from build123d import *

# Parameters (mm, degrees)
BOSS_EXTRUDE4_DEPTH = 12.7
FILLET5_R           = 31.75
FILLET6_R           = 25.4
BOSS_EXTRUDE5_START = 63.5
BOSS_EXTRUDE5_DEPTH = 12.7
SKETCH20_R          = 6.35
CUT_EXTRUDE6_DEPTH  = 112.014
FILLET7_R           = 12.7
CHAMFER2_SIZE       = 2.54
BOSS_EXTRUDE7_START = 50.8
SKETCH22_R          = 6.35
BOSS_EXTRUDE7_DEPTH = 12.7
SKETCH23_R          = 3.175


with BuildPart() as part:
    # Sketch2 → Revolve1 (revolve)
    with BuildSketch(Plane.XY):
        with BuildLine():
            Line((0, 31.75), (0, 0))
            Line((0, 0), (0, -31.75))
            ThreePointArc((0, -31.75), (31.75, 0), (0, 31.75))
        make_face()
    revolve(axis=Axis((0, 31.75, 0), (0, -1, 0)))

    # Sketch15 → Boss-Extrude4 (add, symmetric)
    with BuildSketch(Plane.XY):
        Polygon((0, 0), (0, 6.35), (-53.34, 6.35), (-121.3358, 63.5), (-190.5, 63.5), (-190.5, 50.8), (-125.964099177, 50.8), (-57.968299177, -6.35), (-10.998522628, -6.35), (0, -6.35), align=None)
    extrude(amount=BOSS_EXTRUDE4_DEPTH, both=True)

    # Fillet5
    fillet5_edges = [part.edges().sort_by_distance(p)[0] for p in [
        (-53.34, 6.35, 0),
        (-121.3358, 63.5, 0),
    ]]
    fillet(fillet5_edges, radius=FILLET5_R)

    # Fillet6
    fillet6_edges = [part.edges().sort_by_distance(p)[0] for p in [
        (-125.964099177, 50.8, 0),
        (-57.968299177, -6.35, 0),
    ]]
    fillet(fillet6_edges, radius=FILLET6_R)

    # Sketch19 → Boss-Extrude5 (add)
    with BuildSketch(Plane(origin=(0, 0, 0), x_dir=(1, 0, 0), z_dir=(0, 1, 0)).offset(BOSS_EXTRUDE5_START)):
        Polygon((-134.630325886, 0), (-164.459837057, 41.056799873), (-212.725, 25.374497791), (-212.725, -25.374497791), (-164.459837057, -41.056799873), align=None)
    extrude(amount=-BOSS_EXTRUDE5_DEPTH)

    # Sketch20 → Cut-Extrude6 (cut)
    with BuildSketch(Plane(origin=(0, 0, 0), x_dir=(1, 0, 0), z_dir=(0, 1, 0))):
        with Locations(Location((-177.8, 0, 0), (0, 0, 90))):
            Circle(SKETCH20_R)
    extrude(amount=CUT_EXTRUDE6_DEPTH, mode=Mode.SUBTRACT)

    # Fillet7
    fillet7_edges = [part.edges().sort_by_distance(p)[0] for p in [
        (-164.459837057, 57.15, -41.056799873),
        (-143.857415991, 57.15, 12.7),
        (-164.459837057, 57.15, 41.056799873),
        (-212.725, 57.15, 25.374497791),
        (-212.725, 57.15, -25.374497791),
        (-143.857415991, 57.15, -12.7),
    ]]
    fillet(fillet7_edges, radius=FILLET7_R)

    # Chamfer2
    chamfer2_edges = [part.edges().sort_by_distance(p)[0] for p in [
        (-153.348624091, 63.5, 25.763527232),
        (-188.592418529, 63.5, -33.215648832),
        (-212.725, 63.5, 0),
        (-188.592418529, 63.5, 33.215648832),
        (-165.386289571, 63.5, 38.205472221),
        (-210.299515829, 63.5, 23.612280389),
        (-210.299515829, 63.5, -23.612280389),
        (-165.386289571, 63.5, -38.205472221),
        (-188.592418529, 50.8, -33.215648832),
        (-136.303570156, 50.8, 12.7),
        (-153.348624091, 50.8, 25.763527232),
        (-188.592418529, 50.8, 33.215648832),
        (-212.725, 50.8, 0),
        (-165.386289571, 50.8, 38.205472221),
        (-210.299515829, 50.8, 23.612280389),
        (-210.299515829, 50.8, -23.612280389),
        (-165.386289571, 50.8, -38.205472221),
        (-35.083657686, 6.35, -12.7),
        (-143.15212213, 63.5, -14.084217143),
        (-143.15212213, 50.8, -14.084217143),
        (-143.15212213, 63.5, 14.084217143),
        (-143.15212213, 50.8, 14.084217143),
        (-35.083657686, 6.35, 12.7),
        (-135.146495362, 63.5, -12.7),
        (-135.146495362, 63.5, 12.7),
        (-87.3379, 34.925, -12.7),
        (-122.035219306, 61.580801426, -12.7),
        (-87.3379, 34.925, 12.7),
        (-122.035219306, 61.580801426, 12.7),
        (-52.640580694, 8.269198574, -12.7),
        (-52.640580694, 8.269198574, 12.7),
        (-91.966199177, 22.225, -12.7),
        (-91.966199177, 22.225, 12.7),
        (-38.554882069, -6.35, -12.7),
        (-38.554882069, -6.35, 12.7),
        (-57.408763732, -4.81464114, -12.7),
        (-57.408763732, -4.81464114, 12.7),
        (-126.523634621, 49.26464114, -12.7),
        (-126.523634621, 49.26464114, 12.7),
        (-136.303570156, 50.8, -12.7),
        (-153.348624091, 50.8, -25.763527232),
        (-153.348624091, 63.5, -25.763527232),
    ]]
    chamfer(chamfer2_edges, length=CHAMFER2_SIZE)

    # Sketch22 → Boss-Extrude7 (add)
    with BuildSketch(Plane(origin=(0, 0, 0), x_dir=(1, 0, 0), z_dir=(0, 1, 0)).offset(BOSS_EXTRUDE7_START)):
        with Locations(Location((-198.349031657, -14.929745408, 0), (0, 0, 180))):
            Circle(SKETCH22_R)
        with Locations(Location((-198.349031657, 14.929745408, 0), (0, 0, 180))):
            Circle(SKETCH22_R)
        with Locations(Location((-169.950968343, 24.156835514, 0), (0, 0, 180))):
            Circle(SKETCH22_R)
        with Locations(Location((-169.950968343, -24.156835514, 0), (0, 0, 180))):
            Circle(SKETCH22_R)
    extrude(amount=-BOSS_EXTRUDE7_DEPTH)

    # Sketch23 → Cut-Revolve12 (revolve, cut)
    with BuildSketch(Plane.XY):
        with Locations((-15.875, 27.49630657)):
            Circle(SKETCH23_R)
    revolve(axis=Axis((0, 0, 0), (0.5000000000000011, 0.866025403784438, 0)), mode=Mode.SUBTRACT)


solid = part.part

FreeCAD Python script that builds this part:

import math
import FreeCAD as App
import Part
import Sketcher
from FreeCAD import Vector
Q = App.Units.Quantity


def edges_at(feature, points):
    """Names of the edges that pass closest to the given points."""
    edges = feature.Shape.Edges
    near = lambda p: min(range(len(edges)), key=lambda i: edges[i].distToShape(Part.Vertex(*p))[0])
    return sorted({f"Edge{near(p) + 1}" for p in points})

doc = App.newDocument("Part")
body = doc.addObject("PartDesign::Body", "Body")

sketch1 = body.newObject("Sketcher::SketchObject", "Sketch")
sketch1.AttachmentSupport = (doc.getObject("XY_Plane"), [""])
sketch1.MapMode = "FlatFace"
sketch1.addGeometry(Part.LineSegment(Vector(0, 32, 0), Vector(0, -32, 0)), False)
sketch1.addGeometry(Part.ArcOfCircle(Part.Circle(Vector(0, 0, 0), Vector(0, 0, 1), 32), math.radians(-90), math.radians(90)), False)
sketch1.addConstraint(Sketcher.Constraint("Coincident", 0, 1, 1, 2))
sketch1.addConstraint(Sketcher.Constraint("Coincident", 1, 1, 0, 2))
sketch1.addConstraint(Sketcher.Constraint("Vertical", 0))
sketch1.addConstraint(Sketcher.Constraint("Coincident", 1, 3, -1, 1))
sketch1.addConstraint(Sketcher.Constraint("PointOnObject", 0, 1, -2))
sketch1.addConstraint(Sketcher.Constraint("Radius", 1, Q("1.25 in")))
revolution = body.newObject("PartDesign::Revolution", "Revolution")
revolution.Profile = sketch1
revolution.ReferenceAxis = (sketch1, ["V_Axis"])
revolution.Angle = 360

sketch2 = body.newObject("Sketcher::SketchObject", "Sketch001")
sketch2.AttachmentSupport = (doc.getObject("XY_Plane"), [""])
sketch2.MapMode = "FlatFace"
sketch2.addGeometry(Part.LineSegment(Vector(0, 6, 0), Vector(-53, 6, 0)), False)
sketch2.addGeometry(Part.LineSegment(Vector(-53, 6, 0), Vector(-121, 64, 0)), False)
sketch2.addGeometry(Part.LineSegment(Vector(-121, 64, 0), Vector(-190, 64, 0)), False)
sketch2.addGeometry(Part.LineSegment(Vector(-190, 64, 0), Vector(-190, 51, 0)), False)
sketch2.addGeometry(Part.LineSegment(Vector(-190, 51, 0), Vector(-126, 51, 0)), False)
sketch2.addGeometry(Part.LineSegment(Vector(-126, 51, 0), Vector(-58, -6, 0)), False)
sketch2.addGeometry(Part.LineSegment(Vector(-58, -6, 0), Vector(0, -6, 0)), False)
sketch2.addGeometry(Part.LineSegment(Vector(0, -6, 0), Vector(0, 6, 0)), False)
sketch2.addConstraint(Sketcher.Constraint("Coincident", 0, 2, 1, 1))
sketch2.addConstraint(Sketcher.Constraint("Coincident", 1, 2, 2, 1))
sketch2.addConstraint(Sketcher.Constraint("Coincident", 2, 2, 3, 1))
sketch2.addConstraint(Sketcher.Constraint("Coincident", 3, 2, 4, 1))
sketch2.addConstraint(Sketcher.Constraint("Coincident", 4, 2, 5, 1))
sketch2.addConstraint(Sketcher.Constraint("Coincident", 5, 2, 6, 1))
sketch2.addConstraint(Sketcher.Constraint("Coincident", 6, 2, 7, 1))
sketch2.addConstraint(Sketcher.Constraint("Coincident", 7, 2, 0, 1))
sketch2.addConstraint(Sketcher.Constraint("Horizontal", 0))
sketch2.addConstraint(Sketcher.Constraint("Horizontal", 2))
sketch2.addConstraint(Sketcher.Constraint("Vertical", 3))
sketch2.addConstraint(Sketcher.Constraint("Horizontal", 4))
sketch2.addConstraint(Sketcher.Constraint("Horizontal", 6))
sketch2.addConstraint(Sketcher.Constraint("Vertical", 7))
sketch2.addConstraint(Sketcher.Constraint("Symmetric", 6, 2, 7, 2, -1, 1))
sketch2.addConstraint(Sketcher.Constraint("Parallel", 1, 5))
sketch2.addConstraint(Sketcher.Constraint("Equal", 3, 7))
sketch2.addConstraint(Sketcher.Constraint("DistanceX", 0, 2, 0, 1, Q("2.1 in")))
sketch2.addConstraint(Sketcher.Constraint("DistanceY", 3, 2, 3, 1, Q("0.5 in")))
sketch2.addConstraint(Sketcher.Constraint("DistanceY", -1, 1, 3, 2, Q("2 in")))
sketch2.addConstraint(Sketcher.Constraint("DistanceX", 2, 2, -1, 1, Q("7.5 in")))
sketch2.addConstraint(Sketcher.Constraint("DistanceX", 2, 2, 2, 1, Q("2.723 in")))
sketch2.addConstraint(Sketcher.Constraint("DistanceX", 4, 1, 4, 2, Q("64.535901 mm")))
pad1 = body.newObject("PartDesign::Pad", "Pad")
pad1.Profile = sketch2
pad1.Length = Q("1 in")
pad1.Midplane = True
doc.recompute()

fillet = body.newObject("PartDesign::Fillet", "Fillet")
fillet.Base = (pad1, edges_at(pad1, [(-53.34, 6.35, 0), (-121.336, 63.5, 0)]))
fillet.Radius = Q("1.25 in")
doc.recompute()

fillet2 = body.newObject("PartDesign::Fillet", "Fillet001")
fillet2.Base = (fillet, edges_at(fillet, [(-125.964, 50.8, 0), (-57.968, -6.35, 0)]))
fillet2.Radius = Q("1 in")

sketch3 = body.newObject("Sketcher::SketchObject", "Sketch002")
sketch3.AttachmentSupport = (doc.getObject("XZ_Plane"), [""])
sketch3.MapMode = "FlatFace"
sketch3.AttachmentOffset = App.Placement(Vector(0, 0, -2.5 * 25.4), App.Rotation())
sketch3.addGeometry(Part.LineSegment(Vector(-135, 0, 0), Vector(-164, -41, 0)), False)
sketch3.addGeometry(Part.LineSegment(Vector(-164, -41, 0), Vector(-213, -25, 0)), False)
sketch3.addGeometry(Part.LineSegment(Vector(-213, -25, 0), Vector(-213, 25, 0)), False)
sketch3.addGeometry(Part.LineSegment(Vector(-213, 25, 0), Vector(-164, 41, 0)), False)
sketch3.addGeometry(Part.LineSegment(Vector(-164, 41, 0), Vector(-135, 0, 0)), False)
sketch3.addConstraint(Sketcher.Constraint("Coincident", 0, 2, 1, 1))
sketch3.addConstraint(Sketcher.Constraint("Coincident", 1, 2, 2, 1))
sketch3.addConstraint(Sketcher.Constraint("Coincident", 2, 2, 3, 1))
sketch3.addConstraint(Sketcher.Constraint("Coincident", 3, 2, 4, 1))
sketch3.addConstraint(Sketcher.Constraint("Coincident", 4, 2, 0, 1))
sketch3.addConstraint(Sketcher.Constraint("Vertical", 2))
sketch3.addConstraint(Sketcher.Constraint("Symmetric", 0, 2, 3, 2, -1))
sketch3.addConstraint(Sketcher.Constraint("PointOnObject", 4, 2, -1))
sketch3.addConstraint(Sketcher.Constraint("Equal", 0, 1))
sketch3.addConstraint(Sketcher.Constraint("Equal", 1, 3))
sketch3.addConstraint(Sketcher.Constraint("Angle", 0, Q("-126 deg")))
sketch3.addConstraint(Sketcher.Constraint("Angle", 1, Q("162 deg")))
sketch3.addConstraint(Sketcher.Constraint("DistanceX", 1, 2, -1, 1, Q("8.375 in")))
sketch3.addConstraint(Sketcher.Constraint("DistanceY", 0, 2, -1, 1, Q("41.0568 mm")))
pad2 = body.newObject("PartDesign::Pad", "Pad001")
pad2.Profile = sketch3
pad2.Length = Q("0.5 in")

sketch4 = body.newObject("Sketcher::SketchObject", "Sketch003")
sketch4.AttachmentSupport = (doc.getObject("XZ_Plane"), [""])
sketch4.MapMode = "FlatFace"
sketch4.addGeometry(Part.Circle(Vector(-178, 0, 0), Vector(0, 0, 1), 6), False)
sketch4.addConstraint(Sketcher.Constraint("PointOnObject", 0, 3, -1))
sketch4.addConstraint(Sketcher.Constraint("Diameter", 0, Q("0.5 in")))
sketch4.addConstraint(Sketcher.Constraint("DistanceX", 0, 3, -1, 1, Q("7 in")))
pocket1 = body.newObject("PartDesign::Pocket", "Pocket")
pocket1.Profile = sketch4
pocket1.Length = Q("4.41 in")
doc.recompute()

fillet3 = body.newObject("PartDesign::Fillet", "Fillet002")
fillet3.Base = (pocket1, edges_at(pocket1, [
    (-164.46, 57.15, -41.057),
    (-143.857, 57.15, 12.7),
    (-164.46, 57.15, 41.057),
    (-212.725, 57.15, 25.374),
    (-212.725, 57.15, -25.374),
    (-143.857, 57.15, -12.7),
]))
fillet3.Radius = Q("0.5 in")
doc.recompute()

chamfer = body.newObject("PartDesign::Chamfer", "Chamfer")
chamfer.Base = (fillet3, edges_at(fillet3, [
    (-153.349, 63.5, 25.764),
    (-188.592, 63.5, -33.216),
    (-212.725, 63.5, 0),
    (-188.592, 63.5, 33.216),
    (-165.386, 63.5, 38.205),
    (-210.3, 63.5, 23.612),
    (-210.3, 63.5, -23.612),
    (-165.386, 63.5, -38.205),
    (-188.592, 50.8, -33.216),
    (-136.304, 50.8, 12.7),
    (-153.349, 50.8, 25.764),
    (-188.592, 50.8, 33.216),
    (-212.725, 50.8, 0),
    (-165.386, 50.8, 38.205),
    (-210.3, 50.8, 23.612),
    (-210.3, 50.8, -23.612),
    (-165.386, 50.8, -38.205),
    (-35.084, 6.35, -12.7),
    (-143.152, 63.5, -14.084),
    (-143.152, 50.8, -14.084),
    (-143.152, 63.5, 14.084),
    (-143.152, 50.8, 14.084),
    (-35.084, 6.35, 12.7),
    (-135.146, 63.5, -12.7),
    (-135.146, 63.5, 12.7),
    (-87.338, 34.925, -12.7),
    (-122.035, 61.581, -12.7),
    (-87.338, 34.925, 12.7),
    (-122.035, 61.581, 12.7),
    (-52.641, 8.269, -12.7),
    (-52.641, 8.269, 12.7),
    (-91.966, 22.225, -12.7),
    (-91.966, 22.225, 12.7),
    (-38.555, -6.35, -12.7),
    (-38.555, -6.35, 12.7),
    (-57.409, -4.815, -12.7),
    (-57.409, -4.815, 12.7),
    (-126.524, 49.265, -12.7),
    (-126.524, 49.265, 12.7),
    (-136.304, 50.8, -12.7),
    (-153.349, 50.8, -25.764),
    (-153.349, 63.5, -25.764),
]))
chamfer.Size = Q("0.1 in")

sketch5 = body.newObject("Sketcher::SketchObject", "Sketch004")
sketch5.AttachmentSupport = (doc.getObject("XZ_Plane"), [""])
sketch5.MapMode = "FlatFace"
sketch5.AttachmentOffset = App.Placement(Vector(0, 0, -2 * 25.4), App.Rotation())
sketch5.addGeometry(Part.Circle(Vector(-198, 15, 0), Vector(0, 0, 1), 6), False)
sketch5.addGeometry(Part.Circle(Vector(-198, -15, 0), Vector(0, 0, 1), 6), False)
sketch5.addGeometry(Part.Circle(Vector(-170, -24, 0), Vector(0, 0, 1), 6), False)
sketch5.addGeometry(Part.Circle(Vector(-170, 24, 0), Vector(0, 0, 1), 6), False)
sketch5.addConstraint(Sketcher.Constraint("Equal", 0, 1))
sketch5.addConstraint(Sketcher.Constraint("Equal", 1, 2))
sketch5.addConstraint(Sketcher.Constraint("Equal", 2, 3))
sketch5.addConstraint(Sketcher.Constraint("Symmetric", 0, 3, 1, 3, -1))
sketch5.addConstraint(Sketcher.Constraint("Symmetric", 2, 3, 3, 3, -1))
sketch5.addConstraint(Sketcher.Constraint("Diameter", 0, Q("0.5 in")))
sketch5.addConstraint(Sketcher.Constraint("DistanceX", 0, 3, -1, 1, Q("198.349032 mm")))
sketch5.addConstraint(Sketcher.Constraint("DistanceX", 2, 3, -1, 1, Q("169.950968 mm")))
sketch5.addConstraint(Sketcher.Constraint("DistanceY", 1, 3, 0, 3, Q("29.859491 mm")))
sketch5.addConstraint(Sketcher.Constraint("DistanceY", 2, 3, 1, 3, Q("9.22709 mm")))
pad3 = body.newObject("PartDesign::Pad", "Pad002")
pad3.Profile = sketch5
pad3.Length = Q("0.5 in")

sketch6 = body.newObject("Sketcher::SketchObject", "Sketch005")
sketch6.AttachmentSupport = (doc.getObject("XY_Plane"), [""])
sketch6.MapMode = "FlatFace"
sketch6.addGeometry(Part.Circle(Vector(-15.9, 27.5, 0), Vector(0, 0, 1), 3.2), False)
sketch6.addGeometry(Part.LineSegment(Vector(7.9, 13.7, 0), Vector(12.9, 22.4, 0)), True)
sketch6.addConstraint(Sketcher.Constraint("Diameter", 0, Q("0.25 in")))
sketch6.addConstraint(Sketcher.Constraint("Angle", 1, Q("60 deg")))
sketch6.addConstraint(Sketcher.Constraint("DistanceX", 0, 3, -1, 1, Q("0.625 in")))
sketch6.addConstraint(Sketcher.Constraint("DistanceX", -1, 1, 1, 1, Q("0.3125 in")))
sketch6.addConstraint(Sketcher.Constraint("Distance", 1, Q("10 mm")))
sketch6.addConstraint(Sketcher.Constraint("DistanceY", 1, 2, 0, 3, Q("5.087899 mm")))
sketch6.addConstraint(Sketcher.Constraint("DistanceY", -1, 1, 0, 3, Q("27.496307 mm")))
groove = body.newObject("PartDesign::Groove", "Groove")
groove.Profile = sketch6
groove.ReferenceAxis = (sketch6, ["Axis0"])
groove.Angle = 360

doc.recompute()
